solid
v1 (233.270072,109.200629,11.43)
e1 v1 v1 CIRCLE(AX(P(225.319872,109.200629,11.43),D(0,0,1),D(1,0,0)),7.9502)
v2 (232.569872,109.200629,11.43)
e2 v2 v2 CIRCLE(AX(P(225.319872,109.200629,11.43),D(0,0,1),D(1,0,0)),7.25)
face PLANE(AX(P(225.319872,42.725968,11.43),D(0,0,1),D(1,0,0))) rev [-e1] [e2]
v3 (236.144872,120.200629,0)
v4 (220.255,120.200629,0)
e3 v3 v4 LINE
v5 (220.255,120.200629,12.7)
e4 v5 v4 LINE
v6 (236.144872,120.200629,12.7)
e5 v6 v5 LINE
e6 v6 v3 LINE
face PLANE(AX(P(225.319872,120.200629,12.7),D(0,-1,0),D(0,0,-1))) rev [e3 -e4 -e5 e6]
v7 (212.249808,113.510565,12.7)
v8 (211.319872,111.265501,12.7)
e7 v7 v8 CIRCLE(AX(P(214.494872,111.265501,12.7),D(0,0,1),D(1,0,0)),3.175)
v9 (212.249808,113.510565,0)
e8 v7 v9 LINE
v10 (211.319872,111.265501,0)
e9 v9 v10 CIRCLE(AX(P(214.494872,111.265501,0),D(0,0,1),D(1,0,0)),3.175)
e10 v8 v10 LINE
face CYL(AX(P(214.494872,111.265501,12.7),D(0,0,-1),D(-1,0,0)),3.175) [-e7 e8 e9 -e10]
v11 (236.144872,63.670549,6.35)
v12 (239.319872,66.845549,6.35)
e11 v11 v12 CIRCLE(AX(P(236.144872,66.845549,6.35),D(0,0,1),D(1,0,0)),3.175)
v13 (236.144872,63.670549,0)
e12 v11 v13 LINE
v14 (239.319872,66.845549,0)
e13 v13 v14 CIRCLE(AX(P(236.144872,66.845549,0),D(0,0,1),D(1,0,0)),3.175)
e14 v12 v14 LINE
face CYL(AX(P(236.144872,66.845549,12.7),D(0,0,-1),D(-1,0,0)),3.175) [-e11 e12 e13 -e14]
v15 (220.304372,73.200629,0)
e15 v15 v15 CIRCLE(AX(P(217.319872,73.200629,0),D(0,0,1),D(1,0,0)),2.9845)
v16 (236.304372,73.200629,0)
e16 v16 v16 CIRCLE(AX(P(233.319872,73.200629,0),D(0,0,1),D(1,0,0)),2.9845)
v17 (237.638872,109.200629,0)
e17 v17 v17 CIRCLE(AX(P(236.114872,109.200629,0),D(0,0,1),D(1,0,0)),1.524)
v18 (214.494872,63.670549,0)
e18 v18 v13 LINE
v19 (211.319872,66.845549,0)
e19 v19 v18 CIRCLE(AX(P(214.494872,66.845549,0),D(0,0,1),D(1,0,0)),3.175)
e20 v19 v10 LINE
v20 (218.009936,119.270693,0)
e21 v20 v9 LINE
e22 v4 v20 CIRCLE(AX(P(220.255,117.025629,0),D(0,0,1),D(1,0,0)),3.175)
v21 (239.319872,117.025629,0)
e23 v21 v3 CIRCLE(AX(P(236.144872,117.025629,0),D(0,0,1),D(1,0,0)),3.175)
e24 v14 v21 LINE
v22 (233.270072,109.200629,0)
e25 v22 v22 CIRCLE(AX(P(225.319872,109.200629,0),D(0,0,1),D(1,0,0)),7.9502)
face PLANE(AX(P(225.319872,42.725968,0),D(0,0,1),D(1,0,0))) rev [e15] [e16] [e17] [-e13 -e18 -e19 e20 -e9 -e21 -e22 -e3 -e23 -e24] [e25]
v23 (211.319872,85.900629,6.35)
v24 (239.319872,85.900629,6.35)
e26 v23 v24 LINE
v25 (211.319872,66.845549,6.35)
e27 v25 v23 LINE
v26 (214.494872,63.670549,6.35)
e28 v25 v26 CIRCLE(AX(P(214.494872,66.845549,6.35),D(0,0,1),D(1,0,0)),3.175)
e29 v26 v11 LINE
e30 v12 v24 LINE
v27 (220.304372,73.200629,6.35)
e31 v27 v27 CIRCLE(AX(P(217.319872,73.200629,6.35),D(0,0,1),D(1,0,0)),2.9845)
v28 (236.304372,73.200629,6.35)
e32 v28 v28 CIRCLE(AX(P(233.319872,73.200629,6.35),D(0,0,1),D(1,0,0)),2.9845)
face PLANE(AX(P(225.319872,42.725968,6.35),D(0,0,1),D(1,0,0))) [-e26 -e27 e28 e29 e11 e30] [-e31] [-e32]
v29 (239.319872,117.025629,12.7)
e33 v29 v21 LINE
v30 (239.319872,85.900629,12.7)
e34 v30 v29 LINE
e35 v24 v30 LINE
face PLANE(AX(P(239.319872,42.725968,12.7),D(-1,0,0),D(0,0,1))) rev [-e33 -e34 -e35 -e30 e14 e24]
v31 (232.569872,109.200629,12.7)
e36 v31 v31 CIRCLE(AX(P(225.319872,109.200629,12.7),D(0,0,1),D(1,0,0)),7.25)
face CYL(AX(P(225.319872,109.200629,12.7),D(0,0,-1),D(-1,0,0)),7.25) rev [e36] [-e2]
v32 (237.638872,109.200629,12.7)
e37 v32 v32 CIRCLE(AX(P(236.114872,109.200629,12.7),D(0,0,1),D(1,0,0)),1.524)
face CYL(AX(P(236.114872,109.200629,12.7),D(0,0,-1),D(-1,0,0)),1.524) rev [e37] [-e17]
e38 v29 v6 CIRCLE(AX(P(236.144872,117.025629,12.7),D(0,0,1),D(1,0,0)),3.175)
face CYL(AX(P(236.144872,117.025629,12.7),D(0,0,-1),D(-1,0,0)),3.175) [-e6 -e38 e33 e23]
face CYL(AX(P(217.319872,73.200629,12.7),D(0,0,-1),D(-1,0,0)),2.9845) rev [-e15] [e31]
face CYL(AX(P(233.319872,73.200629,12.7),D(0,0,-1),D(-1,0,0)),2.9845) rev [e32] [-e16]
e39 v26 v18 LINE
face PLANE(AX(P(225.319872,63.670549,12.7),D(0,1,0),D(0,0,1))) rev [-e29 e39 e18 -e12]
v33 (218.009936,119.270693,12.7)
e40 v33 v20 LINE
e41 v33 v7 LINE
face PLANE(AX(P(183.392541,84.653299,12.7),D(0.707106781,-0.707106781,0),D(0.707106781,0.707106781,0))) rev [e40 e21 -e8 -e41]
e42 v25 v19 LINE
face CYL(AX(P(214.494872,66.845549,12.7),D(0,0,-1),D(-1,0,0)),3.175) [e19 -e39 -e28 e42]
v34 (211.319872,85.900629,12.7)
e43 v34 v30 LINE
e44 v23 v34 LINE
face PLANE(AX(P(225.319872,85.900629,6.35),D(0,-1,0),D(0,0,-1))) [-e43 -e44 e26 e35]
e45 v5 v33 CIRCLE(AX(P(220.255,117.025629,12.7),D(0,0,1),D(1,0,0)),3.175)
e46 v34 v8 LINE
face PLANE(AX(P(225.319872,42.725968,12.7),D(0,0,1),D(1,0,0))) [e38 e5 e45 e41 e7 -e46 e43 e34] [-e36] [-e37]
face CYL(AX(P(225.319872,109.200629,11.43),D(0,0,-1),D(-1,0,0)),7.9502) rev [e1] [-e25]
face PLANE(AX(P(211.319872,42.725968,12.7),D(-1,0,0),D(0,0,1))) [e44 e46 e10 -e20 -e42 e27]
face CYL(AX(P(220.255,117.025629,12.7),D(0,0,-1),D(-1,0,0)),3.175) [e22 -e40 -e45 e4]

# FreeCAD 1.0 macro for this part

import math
import FreeCAD as App
import Part
import Sketcher

V = App.Vector
Q = App.Units.Quantity

doc = App.newDocument("Part")
body = doc.addObject("PartDesign::Body", "Body")

# Sketch on XY plane
sketch1 = body.newObject("Sketcher::SketchObject", "Sketch")
sketch1.AttachmentSupport = (doc.getObject("XY_Plane"), [""])
sketch1.MapMode = "FlatFace"
sketch1.addGeometry(Part.ArcOfCircle(Part.Circle(V(214.5, 66.8, 0), V(0, 0, 1), 3.2), math.radians(180), math.radians(270)), False)
sketch1.addGeometry(Part.LineSegment(V(214.5, 63.7, 0), V(236.1, 63.7, 0)), False)
sketch1.addGeometry(Part.ArcOfCircle(Part.Circle(V(236.1, 66.8, 0), V(0, 0, 1), 3.2), math.radians(-90), math.radians(0)), False)
sketch1.addGeometry(Part.LineSegment(V(239.3, 66.8, 0), V(239.3, 117, 0)), False)
sketch1.addGeometry(Part.ArcOfCircle(Part.Circle(V(236.1, 117, 0), V(0, 0, 1), 3.2), math.radians(0), math.radians(90)), False)
sketch1.addGeometry(Part.LineSegment(V(236.1, 120.2, 0), V(220.3, 120.2, 0)), False)
sketch1.addGeometry(Part.ArcOfCircle(Part.Circle(V(220.3, 117, 0), V(0, 0, 1), 3.2), math.radians(90), math.radians(135)), False)
sketch1.addGeometry(Part.LineSegment(V(218, 119.3, 0), V(212.2, 113.5, 0)), False)
sketch1.addGeometry(Part.ArcOfCircle(Part.Circle(V(214.5, 111.3, 0), V(0, 0, 1), 3.2), math.radians(135), math.radians(180)), False)
sketch1.addGeometry(Part.LineSegment(V(211.3, 111.3, 0), V(211.3, 66.8, 0)), False)
sketch1.addGeometry(Part.Circle(V(217.3, 73.2, 0), V(0, 0, 1), 3), False)
sketch1.addGeometry(Part.Circle(V(233.3, 73.2, 0), V(0, 0, 1), 3), False)
sketch1.addGeometry(Part.Circle(V(236.1, 109.2, 0), V(0, 0, 1), 1.5), False)
sketch1.addGeometry(Part.Circle(V(225.3, 109.2, 0), V(0, 0, 1), 7.3), False)
sketch1.addConstraint(Sketcher.Constraint("Tangent", 0, 2, 1, 1))
sketch1.addConstraint(Sketcher.Constraint("Tangent", 1, 2, 2, 1))
sketch1.addConstraint(Sketcher.Constraint("Tangent", 2, 2, 3, 1))
sketch1.addConstraint(Sketcher.Constraint("Tangent", 3, 2, 4, 1))
sketch1.addConstraint(Sketcher.Constraint("Tangent", 4, 2, 5, 1))
sketch1.addConstraint(Sketcher.Constraint("Tangent", 5, 2, 6, 1))
sketch1.addConstraint(Sketcher.Constraint("Tangent", 6, 2, 7, 1))
sketch1.addConstraint(Sketcher.Constraint("Tangent", 7, 2, 8, 1))
sketch1.addConstraint(Sketcher.Constraint("Tangent", 8, 2, 9, 1))
sketch1.addConstraint(Sketcher.Constraint("Tangent", 9, 2, 0, 1))
sketch1.addConstraint(Sketcher.Constraint("Horizontal", 1))
sketch1.addConstraint(Sketcher.Constraint("Vertical", 3))
sketch1.addConstraint(Sketcher.Constraint("Horizontal", 5))
sketch1.addConstraint(Sketcher.Constraint("Vertical", 9))
sketch1.addConstraint(Sketcher.Constraint("Equal", 0, 2))
sketch1.addConstraint(Sketcher.Constraint("Equal", 2, 4))
sketch1.addConstraint(Sketcher.Constraint("Equal", 4, 6))
sketch1.addConstraint(Sketcher.Constraint("Equal", 6, 8))
sketch1.addConstraint(Sketcher.Constraint("Equal", 10, 11))
sketch1.addConstraint(Sketcher.Constraint("Horizontal", 10, 3, 11, 3))
sketch1.addConstraint(Sketcher.Constraint("Horizontal", 12, 3, 13, 3))
sketch1.addConstraint(Sketcher.Constraint("Diameter", 12, Q("0.12 in")))
sketch1.addConstraint(Sketcher.Constraint("Diameter", 10, Q("0.235 in")))
sketch1.addConstraint(Sketcher.Constraint("Angle", 7, Q("-135 deg")))
sketch1.addConstraint(Sketcher.Constraint("Radius", 0, Q("0.125 in")))
sketch1.addConstraint(Sketcher.Constraint("Diameter", 13, Q("14.5 mm")))
sketch1.addConstraint(Sketcher.Constraint("DistanceX", 13, 3, 12, 3, Q("0.425 in")))
sketch1.addConstraint(Sketcher.Constraint("DistanceX", 1, 1, 1, 2, Q("21.65 mm")))
sketch1.addConstraint(Sketcher.Constraint("DistanceY", 0, 3, 10, 3, Q("0.2502 in")))
sketch1.addConstraint(Sketcher.Constraint("DistanceX", 5, 2, 5, 1, Q("15.889872 mm")))
sketch1.addConstraint(Sketcher.Constraint("DistanceY", 3, 1, 3, 2, Q("50.18008 mm")))
sketch1.addConstraint(Sketcher.Constraint("DistanceX", -1, 1, 6, 3, Q("220.255 mm")))
sketch1.addConstraint(Sketcher.Constraint("DistanceY", -1, 1, 8, 3, Q("111.265501 mm")))
sketch1.addConstraint(Sketcher.Constraint("DistanceX", 0, 3, 10, 3, Q("2.825 mm")))
sketch1.addConstraint(Sketcher.Constraint("DistanceX", 11, 3, 2, 3, Q("2.825 mm")))
sketch1.addConstraint(Sketcher.Constraint("DistanceX", 12, 3, 4, 3, Q("0.03 mm")))
sketch1.addConstraint(Sketcher.Constraint("DistanceY", 12, 3, 4, 3, Q("7.825 mm")))
pad1 = body.newObject("PartDesign::Pad", "Pad")
pad1.Profile = sketch1
pad1.Length = Q("0.5 in")

# Sketch on XY plane
sketch2 = body.newObject("Sketcher::SketchObject", "Sketch001")
sketch2.AttachmentSupport = (doc.getObject("XY_Plane"), [""])
sketch2.MapMode = "FlatFace"
sketch2.addGeometry(Part.Circle(V(225, 109, 0), V(0, 0, 1), 8), False)
sketch2.addGeometry(Part.Circle(V(225, 109, 0), V(0, 0, 1), 7), False)
sketch2.addConstraint(Sketcher.Constraint("Coincident", 1, 3, 0, 3))
sketch2.addConstraint(Sketcher.Constraint("Diameter", 0, Q("0.626 in")))
sketch2.addConstraint(Sketcher.Constraint("Diameter", 1, Q("14.5 mm")))
sketch2.addConstraint(Sketcher.Constraint("DistanceX", -1, 1, 0, 3, Q("225.319872 mm")))
sketch2.addConstraint(Sketcher.Constraint("DistanceY", -1, 1, 0, 3, Q("109.200629 mm")))
pocket1 = body.newObject("PartDesign::Pocket", "Pocket")
pocket1.Profile = sketch2
pocket1.Length = Q("0.45 in")
pocket1.Reversed = True

# Sketch on XY plane
sketch3 = body.newObject("Sketcher::SketchObject", "Sketch002")
sketch3.AttachmentSupport = (doc.getObject("XY_Plane"), [""])
sketch3.MapMode = "FlatFace"
sketch3.AttachmentOffset = App.Placement(V(0, 0, 0.25 * 25.4), App.Rotation())
sketch3.addGeometry(Part.ArcOfCircle(Part.Circle(V(214.5, 66.8, 0), V(0, 0, 1), 3.2), math.radians(180), math.radians(270)), False)
sketch3.addGeometry(Part.LineSegment(V(214.5, 63.7, 0), V(236.1, 63.7, 0)), False)
sketch3.addGeometry(Part.ArcOfCircle(Part.Circle(V(236.1, 66.8, 0), V(0, 0, 1), 3.2), math.radians(-90), math.radians(0)), False)
sketch3.addGeometry(Part.LineSegment(V(239.3, 66.8, 0), V(239.3, 85.9, 0)), False)
sketch3.addGeometry(Part.LineSegment(V(239.3, 85.9, 0), V(211.3, 85.9, 0)), False)
sketch3.addGeometry(Part.LineSegment(V(211.3, 85.9, 0), V(211.3, 66.8, 0)), False)
sketch3.addGeometry(Part.Circle(V(217.3, 73.2, 0), V(0, 0, 1), 3), False)
sketch3.addGeometry(Part.Circle(V(233.3, 73.2, 0), V(0, 0, 1), 3), False)
sketch3.addConstraint(Sketcher.Constraint("Tangent", 0, 2, 1, 1))
sketch3.addConstraint(Sketcher.Constraint("Tangent", 1, 2, 2, 1))
sketch3.addConstraint(Sketcher.Constraint("Tangent", 2, 2, 3, 1))
sketch3.addConstraint(Sketcher.Constraint("Coincident", 3, 2, 4, 1))
sketch3.addConstraint(Sketcher.Constraint("Coincident", 4, 2, 5, 1))
sketch3.addConstraint(Sketcher.Constraint("Tangent", 5, 2, 0, 1))
sketch3.addConstraint(Sketcher.Constraint("Horizontal", 1))
sketch3.addConstraint(Sketcher.Constraint("Vertical", 3))
sketch3.addConstraint(Sketcher.Constraint("Horizontal", 4))
sketch3.addConstraint(Sketcher.Constraint("Vertical", 5))
sketch3.addConstraint(Sketcher.Constraint("Equal", 0, 2))
sketch3.addConstraint(Sketcher.Constraint("Equal", 6, 7))
sketch3.addConstraint(Sketcher.Constraint("Horizontal", 6, 3, 7, 3))
sketch3.addConstraint(Sketcher.Constraint("Diameter", 6, Q("0.235 in")))
sketch3.addConstraint(Sketcher.Constraint("Radius", 0, Q("0.125 in")))
sketch3.addConstraint(Sketcher.Constraint("DistanceY", 7, 3, 3, 2, Q("0.5 in")))
sketch3.addConstraint(Sketcher.Constraint("DistanceY", 3, 1, 3, 2, Q("0.7502 in")))
sketch3.addConstraint(Sketcher.Constraint("DistanceX", 1, 1, 1, 2, Q("21.65 mm")))
sketch3.addConstraint(Sketcher.Constraint("DistanceX", 0, 3, 6, 3, Q("2.825 mm")))
sketch3.addConstraint(Sketcher.Constraint("DistanceX", 7, 3, 2, 3, Q("2.825 mm")))
sketch3.addConstraint(Sketcher.Constraint("DistanceX", -1, 1, 0, 3, Q("214.494872 mm")))
sketch3.addConstraint(Sketcher.Constraint("DistanceY", -1, 1, 0, 3, Q("66.845549 mm")))
pocket2 = body.newObject("PartDesign::Pocket", "Pocket001")
pocket2.Profile = sketch3
pocket2.Length = Q("0.25 in")
pocket2.Reversed = True

doc.recompute()
